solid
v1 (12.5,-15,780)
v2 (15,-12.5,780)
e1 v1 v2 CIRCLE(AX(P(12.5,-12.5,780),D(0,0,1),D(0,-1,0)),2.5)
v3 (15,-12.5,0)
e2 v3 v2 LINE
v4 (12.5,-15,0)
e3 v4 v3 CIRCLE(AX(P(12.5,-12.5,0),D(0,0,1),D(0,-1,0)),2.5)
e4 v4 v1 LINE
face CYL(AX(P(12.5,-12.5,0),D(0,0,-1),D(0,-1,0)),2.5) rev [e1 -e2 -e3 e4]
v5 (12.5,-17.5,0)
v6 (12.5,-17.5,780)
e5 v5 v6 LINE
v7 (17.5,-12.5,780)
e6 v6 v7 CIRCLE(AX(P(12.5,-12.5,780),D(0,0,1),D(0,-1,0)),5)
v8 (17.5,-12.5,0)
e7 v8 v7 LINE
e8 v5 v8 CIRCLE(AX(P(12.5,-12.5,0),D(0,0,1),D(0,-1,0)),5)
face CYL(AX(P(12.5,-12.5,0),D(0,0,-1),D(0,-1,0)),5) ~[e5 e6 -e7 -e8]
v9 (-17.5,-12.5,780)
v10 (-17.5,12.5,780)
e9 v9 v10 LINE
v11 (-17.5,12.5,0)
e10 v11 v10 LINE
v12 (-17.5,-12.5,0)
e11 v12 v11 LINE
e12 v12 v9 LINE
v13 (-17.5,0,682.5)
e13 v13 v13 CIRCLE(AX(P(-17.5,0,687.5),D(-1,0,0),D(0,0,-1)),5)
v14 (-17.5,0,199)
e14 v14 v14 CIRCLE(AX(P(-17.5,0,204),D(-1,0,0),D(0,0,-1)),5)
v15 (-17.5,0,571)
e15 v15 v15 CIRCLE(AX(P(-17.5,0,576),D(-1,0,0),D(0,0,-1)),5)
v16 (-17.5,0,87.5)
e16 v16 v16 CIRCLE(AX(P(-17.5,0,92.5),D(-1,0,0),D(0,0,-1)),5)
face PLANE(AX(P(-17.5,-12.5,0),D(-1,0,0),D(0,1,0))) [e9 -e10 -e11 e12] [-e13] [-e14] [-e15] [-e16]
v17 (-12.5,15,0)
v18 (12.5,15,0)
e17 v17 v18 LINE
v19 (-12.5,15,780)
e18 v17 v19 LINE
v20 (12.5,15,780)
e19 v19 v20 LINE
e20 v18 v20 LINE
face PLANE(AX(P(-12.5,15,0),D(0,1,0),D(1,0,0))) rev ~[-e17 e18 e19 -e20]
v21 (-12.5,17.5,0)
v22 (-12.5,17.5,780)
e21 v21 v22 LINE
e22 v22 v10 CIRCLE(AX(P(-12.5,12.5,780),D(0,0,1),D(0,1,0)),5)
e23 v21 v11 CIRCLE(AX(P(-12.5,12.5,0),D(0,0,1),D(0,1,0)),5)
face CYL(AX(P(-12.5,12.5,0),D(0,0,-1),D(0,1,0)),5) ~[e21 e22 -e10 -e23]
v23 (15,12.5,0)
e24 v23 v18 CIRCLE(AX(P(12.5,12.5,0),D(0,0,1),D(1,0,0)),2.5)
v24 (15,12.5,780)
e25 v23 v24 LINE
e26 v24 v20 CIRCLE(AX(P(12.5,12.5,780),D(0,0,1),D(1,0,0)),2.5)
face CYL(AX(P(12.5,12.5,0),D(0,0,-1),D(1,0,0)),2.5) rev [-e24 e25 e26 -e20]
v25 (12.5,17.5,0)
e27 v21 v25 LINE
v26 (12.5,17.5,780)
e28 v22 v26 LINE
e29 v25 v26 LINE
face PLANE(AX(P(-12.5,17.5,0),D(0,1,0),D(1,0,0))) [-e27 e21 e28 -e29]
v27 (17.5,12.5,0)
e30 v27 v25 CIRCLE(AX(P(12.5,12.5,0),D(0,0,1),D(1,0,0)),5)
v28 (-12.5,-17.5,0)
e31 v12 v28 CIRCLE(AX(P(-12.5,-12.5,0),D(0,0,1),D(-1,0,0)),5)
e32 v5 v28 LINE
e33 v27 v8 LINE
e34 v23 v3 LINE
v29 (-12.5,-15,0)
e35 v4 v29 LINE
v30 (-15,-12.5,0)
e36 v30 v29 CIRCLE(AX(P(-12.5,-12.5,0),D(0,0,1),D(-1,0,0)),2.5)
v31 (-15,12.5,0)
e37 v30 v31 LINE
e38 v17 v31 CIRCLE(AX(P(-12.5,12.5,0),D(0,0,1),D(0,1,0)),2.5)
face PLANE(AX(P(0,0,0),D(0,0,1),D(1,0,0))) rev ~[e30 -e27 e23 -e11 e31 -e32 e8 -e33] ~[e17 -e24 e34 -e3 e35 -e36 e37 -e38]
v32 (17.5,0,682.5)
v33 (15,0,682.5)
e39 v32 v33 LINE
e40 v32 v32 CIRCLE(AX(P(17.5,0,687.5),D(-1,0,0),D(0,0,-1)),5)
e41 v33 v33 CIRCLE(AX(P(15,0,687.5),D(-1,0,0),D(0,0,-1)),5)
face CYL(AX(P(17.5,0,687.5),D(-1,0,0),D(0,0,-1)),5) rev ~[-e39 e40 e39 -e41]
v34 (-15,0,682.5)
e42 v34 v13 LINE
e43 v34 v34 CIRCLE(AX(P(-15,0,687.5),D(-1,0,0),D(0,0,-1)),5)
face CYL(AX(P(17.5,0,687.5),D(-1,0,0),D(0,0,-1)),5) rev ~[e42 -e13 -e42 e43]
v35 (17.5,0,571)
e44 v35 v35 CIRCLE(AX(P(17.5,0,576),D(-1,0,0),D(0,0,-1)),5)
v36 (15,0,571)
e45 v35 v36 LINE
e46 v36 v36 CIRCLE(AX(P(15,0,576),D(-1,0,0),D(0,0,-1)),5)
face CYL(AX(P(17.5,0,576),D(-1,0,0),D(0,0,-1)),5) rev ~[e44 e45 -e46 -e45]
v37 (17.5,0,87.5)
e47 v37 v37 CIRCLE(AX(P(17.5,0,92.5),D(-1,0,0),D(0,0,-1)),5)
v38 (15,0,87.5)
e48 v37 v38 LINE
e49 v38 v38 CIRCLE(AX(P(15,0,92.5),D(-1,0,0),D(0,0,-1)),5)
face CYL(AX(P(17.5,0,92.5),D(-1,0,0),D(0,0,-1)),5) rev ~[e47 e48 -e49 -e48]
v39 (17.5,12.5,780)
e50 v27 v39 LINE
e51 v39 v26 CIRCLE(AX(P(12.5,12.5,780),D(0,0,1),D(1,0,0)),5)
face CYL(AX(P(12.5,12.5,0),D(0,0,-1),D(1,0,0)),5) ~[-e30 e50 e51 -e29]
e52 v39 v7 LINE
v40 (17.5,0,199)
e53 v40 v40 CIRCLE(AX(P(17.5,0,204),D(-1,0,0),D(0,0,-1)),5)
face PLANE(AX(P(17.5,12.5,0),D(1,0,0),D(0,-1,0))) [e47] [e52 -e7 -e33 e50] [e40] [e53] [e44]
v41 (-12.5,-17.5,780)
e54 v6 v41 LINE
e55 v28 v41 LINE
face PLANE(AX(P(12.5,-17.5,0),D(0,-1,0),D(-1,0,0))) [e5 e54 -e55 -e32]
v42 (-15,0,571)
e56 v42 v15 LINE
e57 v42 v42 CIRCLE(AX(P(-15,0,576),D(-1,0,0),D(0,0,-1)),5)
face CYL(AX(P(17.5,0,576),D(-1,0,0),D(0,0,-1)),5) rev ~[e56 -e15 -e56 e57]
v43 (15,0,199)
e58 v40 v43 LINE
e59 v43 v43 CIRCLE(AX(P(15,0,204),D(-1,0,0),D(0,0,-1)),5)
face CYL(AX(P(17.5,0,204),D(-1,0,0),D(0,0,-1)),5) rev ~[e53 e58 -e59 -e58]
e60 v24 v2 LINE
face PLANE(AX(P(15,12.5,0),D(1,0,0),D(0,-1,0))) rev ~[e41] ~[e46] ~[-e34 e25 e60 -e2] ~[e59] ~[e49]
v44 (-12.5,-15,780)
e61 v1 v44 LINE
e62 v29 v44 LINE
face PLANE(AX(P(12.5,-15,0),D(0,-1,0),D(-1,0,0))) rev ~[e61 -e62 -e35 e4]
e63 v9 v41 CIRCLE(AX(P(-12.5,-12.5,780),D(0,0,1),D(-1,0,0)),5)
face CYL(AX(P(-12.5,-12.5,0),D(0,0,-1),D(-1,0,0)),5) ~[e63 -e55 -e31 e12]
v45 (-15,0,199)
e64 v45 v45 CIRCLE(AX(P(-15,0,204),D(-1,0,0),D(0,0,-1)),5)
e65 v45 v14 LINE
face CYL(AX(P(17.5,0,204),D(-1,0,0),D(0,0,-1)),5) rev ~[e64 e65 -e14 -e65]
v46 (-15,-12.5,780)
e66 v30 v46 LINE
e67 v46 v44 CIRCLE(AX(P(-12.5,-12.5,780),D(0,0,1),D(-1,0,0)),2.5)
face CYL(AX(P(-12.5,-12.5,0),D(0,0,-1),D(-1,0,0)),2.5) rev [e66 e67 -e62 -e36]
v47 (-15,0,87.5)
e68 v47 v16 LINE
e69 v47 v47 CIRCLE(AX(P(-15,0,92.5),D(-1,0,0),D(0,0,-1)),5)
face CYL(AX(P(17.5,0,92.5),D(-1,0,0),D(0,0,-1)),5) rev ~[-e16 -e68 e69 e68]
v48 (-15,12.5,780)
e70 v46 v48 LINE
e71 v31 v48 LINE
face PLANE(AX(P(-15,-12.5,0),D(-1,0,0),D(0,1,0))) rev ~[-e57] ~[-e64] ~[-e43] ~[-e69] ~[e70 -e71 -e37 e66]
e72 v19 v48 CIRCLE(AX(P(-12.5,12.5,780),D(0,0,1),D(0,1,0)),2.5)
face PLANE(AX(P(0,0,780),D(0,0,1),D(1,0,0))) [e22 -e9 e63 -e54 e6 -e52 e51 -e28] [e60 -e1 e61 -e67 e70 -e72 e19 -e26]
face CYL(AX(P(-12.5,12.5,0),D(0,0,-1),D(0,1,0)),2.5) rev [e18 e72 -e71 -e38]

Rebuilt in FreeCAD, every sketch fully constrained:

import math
import FreeCAD as App
import Part
import Sketcher
from FreeCAD import Vector
Q = App.Units.Quantity

doc = App.newDocument("Part")
body = doc.addObject("PartDesign::Body", "Body")

# Sketch on XY plane
sketch1 = doc.addObject("Sketcher::SketchObject", "Sketch")
body.addObject(sketch1)
sketch1.AttachmentSupport = (doc.XY_Plane, [""])
sketch1.MapMode = "FlatFace"
sketch1.addGeometry(Part.LineSegment(Vector(-17.5, 12.5, 0), Vector(-17.5, -12.5, 0)), False)
sketch1.addGeometry(Part.ArcOfCircle(Part.Circle(Vector(-12.5, -12.5, 0), Vector(0, 0, 1), 5), math.radians(180), math.radians(270)), False)
sketch1.addGeometry(Part.LineSegment(Vector(-12.5, -17.5, 0), Vector(12.5, -17.5, 0)), False)
sketch1.addGeometry(Part.ArcOfCircle(Part.Circle(Vector(12.5, -12.5, 0), Vector(0, 0, 1), 5), math.radians(-90), math.radians(0)), False)
sketch1.addGeometry(Part.LineSegment(Vector(17.5, -12.5, 0), Vector(17.5, 12.5, 0)), False)
sketch1.addGeometry(Part.ArcOfCircle(Part.Circle(Vector(12.5, 12.5, 0), Vector(0, 0, 1), 5), math.radians(0), math.radians(90)), False)
sketch1.addGeometry(Part.LineSegment(Vector(12.5, 17.5, 0), Vector(-12.5, 17.5, 0)), False)
sketch1.addGeometry(Part.ArcOfCircle(Part.Circle(Vector(-12.5, 12.5, 0), Vector(0, 0, 1), 5), math.radians(90), math.radians(180)), False)
sketch1.addGeometry(Part.ArcOfCircle(Part.Circle(Vector(-12.5, 12.5, 0), Vector(0, 0, 1), 2.5), math.radians(90), math.radians(180)), False)
sketch1.addGeometry(Part.LineSegment(Vector(-12.5, 15, 0), Vector(12.5, 15, 0)), False)
sketch1.addGeometry(Part.ArcOfCircle(Part.Circle(Vector(12.5, 12.5, 0), Vector(0, 0, 1), 2.5), math.radians(0), math.radians(90)), False)
sketch1.addGeometry(Part.LineSegment(Vector(15, 12.5, 0), Vector(15, -12.5, 0)), False)
sketch1.addGeometry(Part.ArcOfCircle(Part.Circle(Vector(12.5, -12.5, 0), Vector(0, 0, 1), 2.5), math.radians(-90), math.radians(0)), False)
sketch1.addGeometry(Part.LineSegment(Vector(12.5, -15, 0), Vector(-12.5, -15, 0)), False)
sketch1.addGeometry(Part.ArcOfCircle(Part.Circle(Vector(-12.5, -12.5, 0), Vector(0, 0, 1), 2.5), math.radians(180), math.radians(270)), False)
sketch1.addGeometry(Part.LineSegment(Vector(-15, -12.5, 0), Vector(-15, 12.5, 0)), False)
sketch1.addConstraint(Sketcher.Constraint("Tangent", 0, 2, 1, 1))
sketch1.addConstraint(Sketcher.Constraint("Tangent", 1, 2, 2, 1))
sketch1.addConstraint(Sketcher.Constraint("Tangent", 2, 2, 3, 1))
sketch1.addConstraint(Sketcher.Constraint("Tangent", 3, 2, 4, 1))
sketch1.addConstraint(Sketcher.Constraint("Tangent", 4, 2, 5, 1))
sketch1.addConstraint(Sketcher.Constraint("Tangent", 5, 2, 6, 1))
sketch1.addConstraint(Sketcher.Constraint("Tangent", 6, 2, 7, 1))
sketch1.addConstraint(Sketcher.Constraint("Tangent", 7, 2, 0, 1))
sketch1.addConstraint(Sketcher.Constraint("Tangent", 8, 1, 9, 1))
sketch1.addConstraint(Sketcher.Constraint("Tangent", 9, 2, 10, 2))
sketch1.addConstraint(Sketcher.Constraint("Tangent", 10, 1, 11, 1))
sketch1.addConstraint(Sketcher.Constraint("Tangent", 11, 2, 12, 2))
sketch1.addConstraint(Sketcher.Constraint("Tangent", 12, 1, 13, 1))
sketch1.addConstraint(Sketcher.Constraint("Tangent", 13, 2, 14, 2))
sketch1.addConstraint(Sketcher.Constraint("Tangent", 14, 1, 15, 1))
sketch1.addConstraint(Sketcher.Constraint("Tangent", 15, 2, 8, 2))
sketch1.addConstraint(Sketcher.Constraint("Vertical", 0))
sketch1.addConstraint(Sketcher.Constraint("Horizontal", 2))
sketch1.addConstraint(Sketcher.Constraint("Vertical", 4))
sketch1.addConstraint(Sketcher.Constraint("Horizontal", 6))
sketch1.addConstraint(Sketcher.Constraint("Horizontal", 9))
sketch1.addConstraint(Sketcher.Constraint("Vertical", 11))
sketch1.addConstraint(Sketcher.Constraint("Horizontal", 13))
sketch1.addConstraint(Sketcher.Constraint("Vertical", 15))
sketch1.addConstraint(Sketcher.Constraint("Coincident", 8, 3, 7, 3))
sketch1.addConstraint(Sketcher.Constraint("Coincident", 10, 3, 5, 3))
sketch1.addConstraint(Sketcher.Constraint("Coincident", 12, 3, 3, 3))
sketch1.addConstraint(Sketcher.Constraint("Equal", 1, 3))
sketch1.addConstraint(Sketcher.Constraint("Equal", 3, 5))
sketch1.addConstraint(Sketcher.Constraint("Equal", 5, 7))
sketch1.addConstraint(Sketcher.Constraint("Equal", 12, 14))
sketch1.addConstraint(Sketcher.Constraint("Symmetric", 1, 3, 5, 3, -1, 1))
sketch1.addConstraint(Sketcher.Constraint("Equal", 13, 0))
sketch1.addConstraint(Sketcher.Constraint("Radius", 1, Q("5 mm")))
sketch1.addConstraint(Sketcher.Constraint("Radius", 8, Q("2.5 mm")))
sketch1.addConstraint(Sketcher.Constraint("DistanceX", 0, 2, -1, 1, Q("17.5 mm")))
pad1 = doc.addObject("PartDesign::Pad", "Pad")
body.addObject(pad1)
pad1.Profile = sketch1
pad1.Length = 780

# Sketch on YZ plane
sketch2 = doc.addObject("Sketcher::SketchObject", "Sketch001")
body.addObject(sketch2)
sketch2.AttachmentSupport = (doc.YZ_Plane, [""])
sketch2.MapMode = "FlatFace"
sketch2.AttachmentOffset = App.Placement(Vector(0, 0, 17.5), App.Rotation())
sketch2.addGeometry(Part.Circle(Vector(0, 687.5, 0), Vector(0, 0, 1), 5), False)
sketch2.addGeometry(Part.Circle(Vector(0, 576, 0), Vector(0, 0, 1), 5), False)
sketch2.addGeometry(Part.Circle(Vector(0, 204, 0), Vector(0, 0, 1), 5), False)
sketch2.addGeometry(Part.Circle(Vector(0, 92.5, 0), Vector(0, 0, 1), 5), False)
sketch2.addConstraint(Sketcher.Constraint("Equal", 0, 1))
sketch2.addConstraint(Sketcher.Constraint("Equal", 1, 2))
sketch2.addConstraint(Sketcher.Constraint("Equal", 2, 3))
sketch2.addConstraint(Sketcher.Constraint("PointOnObject", 0, 3, -2))
sketch2.addConstraint(Sketcher.Constraint("PointOnObject", 1, 3, -2))
sketch2.addConstraint(Sketcher.Constraint("PointOnObject", 2, 3, -2))
sketch2.addConstraint(Sketcher.Constraint("PointOnObject", 3, 3, -2))
sketch2.addConstraint(Sketcher.Constraint("Diameter", 0, Q("10 mm")))
sketch2.addConstraint(Sketcher.Constraint("DistanceY", -1, 1, 1, 3, Q("576 mm")))
sketch2.addConstraint(Sketcher.Constraint("DistanceY", -1, 1, 2, 3, Q("204 mm")))
sketch2.addConstraint(Sketcher.Constraint("DistanceY", 3, 3, 0, 3, Q("595 mm")))
sketch2.addConstraint(Sketcher.Constraint("DistanceY", -1, 1, 0, 3, Q("687.5 mm")))
doc.recompute()
hole = doc.addObject("PartDesign::Hole", "Hole")
body.addObject(hole)
hole.Profile = sketch2
hole.ThreadType = "None"
hole.Diameter = 10
hole.DepthType = "ThroughAll"

doc.recompute()
